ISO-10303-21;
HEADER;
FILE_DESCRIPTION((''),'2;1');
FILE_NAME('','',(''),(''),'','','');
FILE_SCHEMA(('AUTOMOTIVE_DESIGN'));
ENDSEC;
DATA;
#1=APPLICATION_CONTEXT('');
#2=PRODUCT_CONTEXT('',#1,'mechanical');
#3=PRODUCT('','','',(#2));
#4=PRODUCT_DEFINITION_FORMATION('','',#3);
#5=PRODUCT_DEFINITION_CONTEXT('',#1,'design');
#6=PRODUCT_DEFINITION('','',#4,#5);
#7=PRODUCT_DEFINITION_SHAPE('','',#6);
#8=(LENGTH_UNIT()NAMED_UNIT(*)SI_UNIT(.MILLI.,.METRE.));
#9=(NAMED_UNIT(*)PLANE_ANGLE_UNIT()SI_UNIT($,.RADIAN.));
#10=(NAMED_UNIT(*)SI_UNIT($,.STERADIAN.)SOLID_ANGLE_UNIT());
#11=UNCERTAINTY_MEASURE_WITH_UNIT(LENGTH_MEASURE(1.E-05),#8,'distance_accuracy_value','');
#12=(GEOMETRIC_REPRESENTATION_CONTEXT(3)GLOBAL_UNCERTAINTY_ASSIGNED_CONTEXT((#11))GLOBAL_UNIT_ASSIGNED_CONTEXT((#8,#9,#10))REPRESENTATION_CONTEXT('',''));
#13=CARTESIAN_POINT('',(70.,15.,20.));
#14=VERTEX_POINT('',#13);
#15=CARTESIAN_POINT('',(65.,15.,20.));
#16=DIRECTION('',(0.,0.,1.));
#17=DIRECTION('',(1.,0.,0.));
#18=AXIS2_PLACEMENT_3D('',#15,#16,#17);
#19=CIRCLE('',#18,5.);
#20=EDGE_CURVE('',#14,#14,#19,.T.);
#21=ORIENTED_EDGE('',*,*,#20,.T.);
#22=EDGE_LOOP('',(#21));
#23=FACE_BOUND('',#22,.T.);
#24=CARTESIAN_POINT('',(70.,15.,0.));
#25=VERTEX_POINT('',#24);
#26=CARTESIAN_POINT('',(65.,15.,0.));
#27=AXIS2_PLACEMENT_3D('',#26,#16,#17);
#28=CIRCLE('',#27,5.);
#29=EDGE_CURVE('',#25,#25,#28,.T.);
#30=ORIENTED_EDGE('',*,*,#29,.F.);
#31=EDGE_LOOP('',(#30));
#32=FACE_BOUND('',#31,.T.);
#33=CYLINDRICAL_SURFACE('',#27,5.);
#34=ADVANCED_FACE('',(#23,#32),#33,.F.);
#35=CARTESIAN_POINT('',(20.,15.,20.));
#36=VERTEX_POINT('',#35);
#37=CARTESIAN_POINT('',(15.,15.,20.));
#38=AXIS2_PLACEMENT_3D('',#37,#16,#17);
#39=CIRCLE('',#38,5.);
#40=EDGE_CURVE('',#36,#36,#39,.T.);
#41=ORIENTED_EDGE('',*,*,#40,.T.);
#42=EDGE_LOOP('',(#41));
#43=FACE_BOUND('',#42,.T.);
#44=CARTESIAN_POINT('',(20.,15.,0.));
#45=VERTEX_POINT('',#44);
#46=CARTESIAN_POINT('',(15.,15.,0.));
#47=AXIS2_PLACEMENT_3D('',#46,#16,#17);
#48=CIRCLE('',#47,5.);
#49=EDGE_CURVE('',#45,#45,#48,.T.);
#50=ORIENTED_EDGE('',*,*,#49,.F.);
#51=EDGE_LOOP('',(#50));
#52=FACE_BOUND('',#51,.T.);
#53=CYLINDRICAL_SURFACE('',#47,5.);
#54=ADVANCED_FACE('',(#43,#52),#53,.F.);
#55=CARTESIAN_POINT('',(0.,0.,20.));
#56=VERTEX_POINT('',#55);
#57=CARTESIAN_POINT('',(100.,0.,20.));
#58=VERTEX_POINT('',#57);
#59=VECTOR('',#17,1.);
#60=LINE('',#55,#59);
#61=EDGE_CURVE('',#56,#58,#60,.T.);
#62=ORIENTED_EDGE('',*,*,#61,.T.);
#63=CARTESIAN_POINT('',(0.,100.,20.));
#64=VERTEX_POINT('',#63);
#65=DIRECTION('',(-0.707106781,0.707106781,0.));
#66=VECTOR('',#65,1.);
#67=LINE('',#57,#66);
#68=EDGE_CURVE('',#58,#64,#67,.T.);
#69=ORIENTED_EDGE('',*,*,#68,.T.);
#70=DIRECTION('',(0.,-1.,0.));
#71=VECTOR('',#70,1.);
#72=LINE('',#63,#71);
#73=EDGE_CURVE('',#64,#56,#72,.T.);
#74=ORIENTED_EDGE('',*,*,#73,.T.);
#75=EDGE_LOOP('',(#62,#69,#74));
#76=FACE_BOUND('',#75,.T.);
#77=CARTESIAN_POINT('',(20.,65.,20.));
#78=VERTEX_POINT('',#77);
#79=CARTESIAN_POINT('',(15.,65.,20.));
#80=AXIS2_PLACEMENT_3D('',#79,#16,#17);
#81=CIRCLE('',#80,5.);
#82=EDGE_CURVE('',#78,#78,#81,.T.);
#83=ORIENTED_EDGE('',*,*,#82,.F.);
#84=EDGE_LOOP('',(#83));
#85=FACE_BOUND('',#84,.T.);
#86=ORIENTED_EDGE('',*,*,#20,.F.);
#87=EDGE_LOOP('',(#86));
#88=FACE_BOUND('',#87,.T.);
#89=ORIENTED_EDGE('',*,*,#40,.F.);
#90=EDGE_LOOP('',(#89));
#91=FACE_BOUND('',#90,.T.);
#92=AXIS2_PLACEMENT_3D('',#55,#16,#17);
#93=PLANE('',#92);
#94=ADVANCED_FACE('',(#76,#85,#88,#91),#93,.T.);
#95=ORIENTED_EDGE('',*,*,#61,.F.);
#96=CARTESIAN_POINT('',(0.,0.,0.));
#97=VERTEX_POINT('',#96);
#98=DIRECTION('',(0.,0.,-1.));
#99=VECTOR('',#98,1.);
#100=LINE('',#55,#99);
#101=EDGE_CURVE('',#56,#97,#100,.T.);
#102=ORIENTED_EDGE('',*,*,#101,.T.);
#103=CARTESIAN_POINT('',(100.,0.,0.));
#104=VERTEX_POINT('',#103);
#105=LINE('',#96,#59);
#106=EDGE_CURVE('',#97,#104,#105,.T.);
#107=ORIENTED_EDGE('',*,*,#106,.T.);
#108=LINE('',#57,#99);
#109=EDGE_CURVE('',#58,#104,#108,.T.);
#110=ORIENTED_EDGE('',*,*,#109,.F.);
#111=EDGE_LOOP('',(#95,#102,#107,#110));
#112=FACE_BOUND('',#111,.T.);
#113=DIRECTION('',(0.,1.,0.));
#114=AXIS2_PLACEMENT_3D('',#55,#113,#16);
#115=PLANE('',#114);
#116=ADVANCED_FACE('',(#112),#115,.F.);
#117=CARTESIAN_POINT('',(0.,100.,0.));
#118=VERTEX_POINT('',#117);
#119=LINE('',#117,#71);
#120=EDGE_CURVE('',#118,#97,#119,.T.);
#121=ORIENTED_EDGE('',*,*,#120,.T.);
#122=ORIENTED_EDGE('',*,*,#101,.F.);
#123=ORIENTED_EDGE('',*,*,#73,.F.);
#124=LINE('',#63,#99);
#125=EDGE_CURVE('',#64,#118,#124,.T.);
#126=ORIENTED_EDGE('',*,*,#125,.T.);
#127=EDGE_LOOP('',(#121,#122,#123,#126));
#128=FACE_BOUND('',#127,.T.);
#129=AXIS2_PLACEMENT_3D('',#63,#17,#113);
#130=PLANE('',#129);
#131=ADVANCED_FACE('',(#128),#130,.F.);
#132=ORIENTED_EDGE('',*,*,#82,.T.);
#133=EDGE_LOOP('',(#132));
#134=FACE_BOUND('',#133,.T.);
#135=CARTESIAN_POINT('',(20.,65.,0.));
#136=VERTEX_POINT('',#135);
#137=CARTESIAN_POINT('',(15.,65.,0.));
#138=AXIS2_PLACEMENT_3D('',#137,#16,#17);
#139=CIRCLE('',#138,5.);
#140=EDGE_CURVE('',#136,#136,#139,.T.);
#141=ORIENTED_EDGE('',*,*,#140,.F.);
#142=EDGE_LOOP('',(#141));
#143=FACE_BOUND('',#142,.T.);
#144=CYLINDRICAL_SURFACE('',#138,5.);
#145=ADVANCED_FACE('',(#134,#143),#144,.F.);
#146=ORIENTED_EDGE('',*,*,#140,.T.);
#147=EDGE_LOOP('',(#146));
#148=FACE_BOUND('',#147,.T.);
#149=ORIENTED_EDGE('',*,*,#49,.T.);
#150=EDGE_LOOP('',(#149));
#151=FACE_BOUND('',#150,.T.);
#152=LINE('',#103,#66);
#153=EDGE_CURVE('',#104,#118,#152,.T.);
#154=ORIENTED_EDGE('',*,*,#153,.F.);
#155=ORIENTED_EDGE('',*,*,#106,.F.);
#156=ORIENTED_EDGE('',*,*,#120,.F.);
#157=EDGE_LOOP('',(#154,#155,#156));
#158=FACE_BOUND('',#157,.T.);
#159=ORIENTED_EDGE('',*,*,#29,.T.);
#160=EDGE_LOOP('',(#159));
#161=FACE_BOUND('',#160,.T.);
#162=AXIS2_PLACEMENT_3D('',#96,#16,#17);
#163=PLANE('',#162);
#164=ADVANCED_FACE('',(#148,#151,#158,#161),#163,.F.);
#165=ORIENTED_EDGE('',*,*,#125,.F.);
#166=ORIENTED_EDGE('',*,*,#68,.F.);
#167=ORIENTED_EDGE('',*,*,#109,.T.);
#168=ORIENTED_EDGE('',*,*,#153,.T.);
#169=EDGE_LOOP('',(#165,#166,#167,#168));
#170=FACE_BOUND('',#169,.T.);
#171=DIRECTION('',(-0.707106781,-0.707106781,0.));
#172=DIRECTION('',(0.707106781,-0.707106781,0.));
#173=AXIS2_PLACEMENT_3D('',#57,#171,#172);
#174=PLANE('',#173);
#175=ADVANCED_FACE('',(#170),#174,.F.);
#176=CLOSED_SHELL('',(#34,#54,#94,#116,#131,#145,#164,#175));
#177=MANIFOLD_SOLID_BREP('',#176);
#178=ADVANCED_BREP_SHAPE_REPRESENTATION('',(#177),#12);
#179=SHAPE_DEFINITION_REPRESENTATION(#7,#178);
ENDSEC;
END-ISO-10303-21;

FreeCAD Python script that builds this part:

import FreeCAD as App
import Part
import Sketcher

V = App.Vector

doc = App.newDocument("Part")
body = doc.addObject("PartDesign::Body", "Body")

sketch1 = body.newObject("Sketcher::SketchObject", "Sketch")
sketch1.AttachmentSupport = (doc.getObject("XY_Plane"), [""])
sketch1.MapMode = "FlatFace"
sketch1.addGeometry(Part.LineSegment(V(0, 0, 0), V(100, 0, 0)), False)
sketch1.addGeometry(Part.LineSegment(V(100, 0, 0), V(0, 100, 0)), False)
sketch1.addGeometry(Part.LineSegment(V(0, 100, 0), V(0, 0, 0)), False)
sketch1.addConstraint(Sketcher.Constraint("Coincident", 0, 2, 1, 1))
sketch1.addConstraint(Sketcher.Constraint("Coincident", 1, 2, 2, 1))
sketch1.addConstraint(Sketcher.Constraint("Coincident", 2, 2, 0, 1))
sketch1.addConstraint(Sketcher.Constraint("Horizontal", 0))
sketch1.addConstraint(Sketcher.Constraint("Vertical", 2))
sketch1.addConstraint(Sketcher.Constraint("Coincident", 2, 2, -1, 1))
sketch1.addConstraint(Sketcher.Constraint("Equal", 0, 2))
sketch1.addConstraint(Sketcher.Constraint("DistanceX", 0, 1, 0, 2, 100.0))
pad1 = body.newObject("PartDesign::Pad", "Pad")
pad1.Profile = sketch1
pad1.Length = 20

sketch2 = body.newObject("Sketcher::SketchObject", "Sketch001")
sketch2.AttachmentSupport = (doc.getObject("XY_Plane"), [""])
sketch2.MapMode = "FlatFace"
sketch2.AttachmentOffset = App.Placement(V(0, 0, 20), App.Rotation())
sketch2.addGeometry(Part.Circle(V(15, 65, 0), V(0, 0, 1), 5), False)
sketch2.addGeometry(Part.Circle(V(15, 15, 0), V(0, 0, 1), 5), False)
sketch2.addGeometry(Part.Circle(V(65, 15, 0), V(0, 0, 1), 5), False)
sketch2.addConstraint(Sketcher.Constraint("Equal", 0, 1))
sketch2.addConstraint(Sketcher.Constraint("Equal", 1, 2))
sketch2.addConstraint(Sketcher.Constraint("Horizontal", 1, 3, 2, 3))
sketch2.addConstraint(Sketcher.Constraint("Vertical", 0, 3, 1, 3))
sketch2.addConstraint(Sketcher.Constraint("Diameter", 0, 10.0))
sketch2.addConstraint(Sketcher.Constraint("DistanceX", -1, 1, 0, 3, 15.0))
sketch2.addConstraint(Sketcher.Constraint("DistanceY", -1, 1, 0, 3, 65.0))
sketch2.addConstraint(Sketcher.Constraint("DistanceY", -1, 1, 1, 3, 15.0))
sketch2.addConstraint(Sketcher.Constraint("DistanceX", -1, 1, 2, 3, 65.0))
pocket1 = body.newObject("PartDesign::Pocket", "Pocket")
pocket1.Profile = sketch2
pocket1.Length = 20

doc.recompute()
